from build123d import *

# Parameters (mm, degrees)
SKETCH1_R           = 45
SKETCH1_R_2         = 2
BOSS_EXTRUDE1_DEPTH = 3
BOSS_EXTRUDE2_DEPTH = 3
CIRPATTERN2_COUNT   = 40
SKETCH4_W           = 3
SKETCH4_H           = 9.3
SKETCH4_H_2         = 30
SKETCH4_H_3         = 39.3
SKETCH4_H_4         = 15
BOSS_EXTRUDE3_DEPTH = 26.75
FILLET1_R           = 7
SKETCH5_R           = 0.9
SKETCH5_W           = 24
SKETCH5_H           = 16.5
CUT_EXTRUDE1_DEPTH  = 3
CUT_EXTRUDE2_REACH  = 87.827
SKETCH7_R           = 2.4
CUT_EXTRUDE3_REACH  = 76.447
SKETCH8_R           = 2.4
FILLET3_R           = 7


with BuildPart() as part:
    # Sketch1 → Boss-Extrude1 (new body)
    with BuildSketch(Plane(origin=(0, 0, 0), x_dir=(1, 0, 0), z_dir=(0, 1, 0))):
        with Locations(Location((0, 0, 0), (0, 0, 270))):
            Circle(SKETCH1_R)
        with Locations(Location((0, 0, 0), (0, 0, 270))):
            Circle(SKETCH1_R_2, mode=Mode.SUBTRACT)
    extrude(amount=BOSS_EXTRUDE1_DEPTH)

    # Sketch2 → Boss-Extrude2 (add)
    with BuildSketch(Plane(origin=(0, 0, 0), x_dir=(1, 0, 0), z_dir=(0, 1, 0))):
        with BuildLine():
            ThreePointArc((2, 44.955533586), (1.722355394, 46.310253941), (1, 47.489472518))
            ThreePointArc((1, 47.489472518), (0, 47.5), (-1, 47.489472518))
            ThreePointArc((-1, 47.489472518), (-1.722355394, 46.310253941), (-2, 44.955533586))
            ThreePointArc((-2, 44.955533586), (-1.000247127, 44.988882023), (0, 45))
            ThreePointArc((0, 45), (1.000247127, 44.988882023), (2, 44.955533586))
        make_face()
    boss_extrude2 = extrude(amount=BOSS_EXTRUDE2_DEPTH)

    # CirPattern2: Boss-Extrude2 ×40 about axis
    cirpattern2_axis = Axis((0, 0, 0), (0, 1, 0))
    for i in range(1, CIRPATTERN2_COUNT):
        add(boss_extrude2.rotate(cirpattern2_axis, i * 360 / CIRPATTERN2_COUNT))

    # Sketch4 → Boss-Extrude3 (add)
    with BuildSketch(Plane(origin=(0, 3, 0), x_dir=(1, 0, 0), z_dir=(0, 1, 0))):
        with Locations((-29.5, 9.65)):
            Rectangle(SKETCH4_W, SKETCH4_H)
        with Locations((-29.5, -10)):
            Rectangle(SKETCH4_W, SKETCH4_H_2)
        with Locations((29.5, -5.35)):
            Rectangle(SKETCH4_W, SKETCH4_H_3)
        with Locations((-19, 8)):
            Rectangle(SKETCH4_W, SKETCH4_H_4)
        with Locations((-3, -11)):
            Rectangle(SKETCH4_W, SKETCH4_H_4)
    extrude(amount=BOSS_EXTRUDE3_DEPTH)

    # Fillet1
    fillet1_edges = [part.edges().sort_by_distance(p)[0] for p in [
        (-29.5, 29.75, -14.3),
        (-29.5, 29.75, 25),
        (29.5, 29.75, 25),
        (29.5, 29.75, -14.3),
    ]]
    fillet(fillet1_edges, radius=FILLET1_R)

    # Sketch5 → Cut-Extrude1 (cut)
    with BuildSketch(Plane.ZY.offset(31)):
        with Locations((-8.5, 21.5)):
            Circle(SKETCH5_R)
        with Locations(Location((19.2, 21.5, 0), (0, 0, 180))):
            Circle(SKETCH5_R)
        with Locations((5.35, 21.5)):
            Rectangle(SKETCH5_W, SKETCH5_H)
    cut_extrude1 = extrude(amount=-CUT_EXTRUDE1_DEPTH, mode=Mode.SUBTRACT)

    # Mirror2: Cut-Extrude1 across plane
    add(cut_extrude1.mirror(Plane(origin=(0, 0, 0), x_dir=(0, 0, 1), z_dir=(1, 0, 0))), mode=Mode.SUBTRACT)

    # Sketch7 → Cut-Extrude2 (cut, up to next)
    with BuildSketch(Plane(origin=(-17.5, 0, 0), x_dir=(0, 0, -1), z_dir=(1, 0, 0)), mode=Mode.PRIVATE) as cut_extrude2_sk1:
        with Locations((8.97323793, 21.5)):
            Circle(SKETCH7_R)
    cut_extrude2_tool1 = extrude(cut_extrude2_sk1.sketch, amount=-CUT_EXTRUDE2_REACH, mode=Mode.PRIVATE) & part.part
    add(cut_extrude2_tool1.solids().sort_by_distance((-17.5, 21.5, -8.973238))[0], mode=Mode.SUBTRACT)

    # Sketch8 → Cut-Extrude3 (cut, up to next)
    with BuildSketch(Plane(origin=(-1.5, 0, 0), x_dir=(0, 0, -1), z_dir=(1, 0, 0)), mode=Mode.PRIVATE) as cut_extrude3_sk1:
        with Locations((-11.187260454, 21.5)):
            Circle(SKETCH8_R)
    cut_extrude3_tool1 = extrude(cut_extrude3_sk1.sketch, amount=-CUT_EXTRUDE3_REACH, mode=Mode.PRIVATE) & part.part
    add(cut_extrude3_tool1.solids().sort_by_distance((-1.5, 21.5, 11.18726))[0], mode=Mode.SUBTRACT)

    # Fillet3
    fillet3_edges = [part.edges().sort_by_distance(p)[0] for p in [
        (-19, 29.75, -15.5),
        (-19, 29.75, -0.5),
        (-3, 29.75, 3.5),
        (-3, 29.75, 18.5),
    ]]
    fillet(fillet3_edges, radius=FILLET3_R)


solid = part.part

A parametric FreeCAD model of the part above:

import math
import FreeCAD as App
import Part
import Sketcher
Q = App.Units.Quantity


def edges_at(feature, points):
    """Names of the edges that pass closest to the given points."""
    edges = feature.Shape.Edges
    near = lambda p: min(range(len(edges)), key=lambda i: edges[i].distToShape(Part.Vertex(*p))[0])
    return sorted({f"Edge{near(p) + 1}" for p in points})

doc = App.newDocument("Part")
body = doc.addObject("PartDesign::Body", "Body")

sketch1 = body.newObject("Sketcher::SketchObject", "Sketch")
sketch1.AttachmentSupport = (doc.getObject("XZ_Plane"), [""])
sketch1.MapMode = "FlatFace"
sketch1.addGeometry([
    Part.Circle(App.Vector(0, 0, 0), App.Vector(0, 0, 1), 45),
    Part.Circle(App.Vector(0, 0, 0), App.Vector(0, 0, 1), 2),
], False)
sketch1.addConstraint([
    Sketcher.Constraint("Coincident", 0, 3, -1, 1),
    Sketcher.Constraint("Coincident", 1, 3, -1, 1),
    Sketcher.Constraint("Diameter", 0, Q("90 mm")),
    Sketcher.Constraint("Diameter", 1, Q("4 mm")),
])
pad1 = body.newObject("PartDesign::Pad", "Pad")
pad1.Profile = sketch1
pad1.Length = 3
pad1.Reversed = True

sketch2 = body.newObject("Sketcher::SketchObject", "Sketch001")
sketch2.AttachmentSupport = (doc.getObject("XZ_Plane"), [""])
sketch2.MapMode = "FlatFace"
sketch2.addGeometry([
    Part.ArcOfCircle(Part.Circle(App.Vector(-2, -44.8, 0), App.Vector(0, 0, 1), 4), math.radians(-41), math.radians(-2)),
    Part.ArcOfCircle(Part.Circle(App.Vector(0, 0, 0), App.Vector(0, 0, 1), 47.5), math.radians(-91.21), math.radians(-88.79)),
    Part.ArcOfCircle(Part.Circle(App.Vector(2, -44.8, 0), App.Vector(0, 0, 1), 4), math.radians(-178), math.radians(-139)),
    Part.ArcOfCircle(Part.Circle(App.Vector(0, 0, 0), App.Vector(0, 0, 1), 45), math.radians(-92.55), math.radians(-90)),
    Part.ArcOfCircle(Part.Circle(App.Vector(0, 0, 0), App.Vector(0, 0, 1), 45), math.radians(-90), math.radians(-87.45)),
], False)
sketch2.addConstraint([
    Sketcher.Constraint("Coincident", 0, 1, 1, 2),
    Sketcher.Constraint("Coincident", 1, 1, 2, 2),
    Sketcher.Constraint("Coincident", 2, 1, 3, 1),
    Sketcher.Constraint("Tangent", 3, 2, 4, 1),
    Sketcher.Constraint("Coincident", 4, 2, 0, 2),
    Sketcher.Constraint("Coincident", 1, 3, -1, 1),
    Sketcher.Constraint("Coincident", 3, 3, -1, 1),
    Sketcher.Constraint("Equal", 0, 2),
    Sketcher.Constraint("Equal", 3, 4),
    Sketcher.Constraint("Symmetric", 0, 3, 2, 3, -2),
    Sketcher.Constraint("PointOnObject", 3, 2, -2),
    Sketcher.Constraint("Radius", 0, Q("4 mm")),
    Sketcher.Constraint("Radius", 3, Q("45 mm")),
    Sketcher.Constraint("Radius", 1, Q("47.500002 mm")),
    Sketcher.Constraint("DistanceX", -1, 1, 0, 1, Q("1 mm")),
    Sketcher.Constraint("DistanceX", 2, 1, -1, 1, Q("2 mm")),
])
pad2 = body.newObject("PartDesign::Pad", "Pad001")
pad2.Profile = sketch2
pad2.Length = 3
pad2.Reversed = True
doc.recompute()

polarpattern = body.newObject("PartDesign::PolarPattern", "PolarPattern")
polarpattern.Originals = [pad2]
polarpattern.Axis = (doc.getObject("Y_Axis"), [""])
polarpattern.Angle = 360
polarpattern.Occurrences = 40
body.Tip = polarpattern

sketch3 = body.newObject("Sketcher::SketchObject", "Sketch002")
sketch3.AttachmentSupport = (doc.getObject("XZ_Plane"), [""])
sketch3.MapMode = "FlatFace"
sketch3.AttachmentOffset = App.Placement(App.Vector(0, 0, -3), App.Rotation())
sketch3.addGeometry([
    Part.LineSegment(App.Vector(-31, -14.3, 0), App.Vector(-31, 25, 0)),
    Part.LineSegment(App.Vector(-31, 25, 0), App.Vector(-28, 25, 0)),
    Part.LineSegment(App.Vector(-28, 25, 0), App.Vector(-28, -14.3, 0)),
    Part.LineSegment(App.Vector(-28, -14.3, 0), App.Vector(-31, -14.3, 0)),
    Part.LineSegment(App.Vector(28, -14.3, 0), App.Vector(28, 25, 0)),
    Part.LineSegment(App.Vector(28, 25, 0), App.Vector(31, 25, 0)),
    Part.LineSegment(App.Vector(31, 25, 0), App.Vector(31, -14.3, 0)),
    Part.LineSegment(App.Vector(31, -14.3, 0), App.Vector(28, -14.3, 0)),
    Part.LineSegment(App.Vector(-20.5, -15.5, 0), App.Vector(-20.5, -0.5, 0)),
    Part.LineSegment(App.Vector(-20.5, -0.5, 0), App.Vector(-17.5, -0.5, 0)),
    Part.LineSegment(App.Vector(-17.5, -0.5, 0), App.Vector(-17.5, -15.5, 0)),
    Part.LineSegment(App.Vector(-17.5, -15.5, 0), App.Vector(-20.5, -15.5, 0)),
    Part.LineSegment(App.Vector(-4.5, 3.5, 0), App.Vector(-4.5, 18.5, 0)),
    Part.LineSegment(App.Vector(-4.5, 18.5, 0), App.Vector(-1.5, 18.5, 0)),
    Part.LineSegment(App.Vector(-1.5, 18.5, 0), App.Vector(-1.5, 3.5, 0)),
    Part.LineSegment(App.Vector(-1.5, 3.5, 0), App.Vector(-4.5, 3.5, 0)),
], False)
sketch3.addConstraint([
    Sketcher.Constraint("Coincident", 0, 2, 1, 1),
    Sketcher.Constraint("Coincident", 1, 2, 2, 1),
    Sketcher.Constraint("Coincident", 2, 2, 3, 1),
    Sketcher.Constraint("Coincident", 3, 2, 0, 1),
    Sketcher.Constraint("Coincident", 4, 2, 5, 1),
    Sketcher.Constraint("Coincident", 5, 2, 6, 1),
    Sketcher.Constraint("Coincident", 6, 2, 7, 1),
    Sketcher.Constraint("Coincident", 7, 2, 4, 1),
    Sketcher.Constraint("Coincident", 8, 2, 9, 1),
    Sketcher.Constraint("Coincident", 9, 2, 10, 1),
    Sketcher.Constraint("Coincident", 10, 2, 11, 1),
    Sketcher.Constraint("Coincident", 11, 2, 8, 1),
    Sketcher.Constraint("Coincident", 12, 2, 13, 1),
    Sketcher.Constraint("Coincident", 13, 2, 14, 1),
    Sketcher.Constraint("Coincident", 14, 2, 15, 1),
    Sketcher.Constraint("Coincident", 15, 2, 12, 1),
    Sketcher.Constraint("Vertical", 0),
    Sketcher.Constraint("Horizontal", 1),
    Sketcher.Constraint("Vertical", 2),
    Sketcher.Constraint("Horizontal", 3),
    Sketcher.Constraint("Vertical", 4),
    Sketcher.Constraint("Horizontal", 5),
    Sketcher.Constraint("Vertical", 6),
    Sketcher.Constraint("Horizontal", 7),
    Sketcher.Constraint("Vertical", 8),
    Sketcher.Constraint("Horizontal", 9),
    Sketcher.Constraint("Vertical", 10),
    Sketcher.Constraint("Horizontal", 11),
    Sketcher.Constraint("Vertical", 12),
    Sketcher.Constraint("Horizontal", 13),
    Sketcher.Constraint("Vertical", 14),
    Sketcher.Constraint("Horizontal", 15),
    Sketcher.Constraint("Symmetric", 1, 2, 4, 2, -2),
    Sketcher.Constraint("Symmetric", 3, 2, 6, 2, -2),
    Sketcher.Constraint("Equal", 7, 9),
    Sketcher.Constraint("Equal", 11, 13),
    Sketcher.Constraint("Equal", 10, 12),
    Sketcher.Constraint("DistanceX", 1, 1, 1, 2, Q("3 mm")),
    Sketcher.Constraint("DistanceY", 8, 1, 8, 2, Q("15 mm")),
    Sketcher.Constraint("DistanceY", 0, 1, 0, 2, Q("39.3 mm")),
    Sketcher.Constraint("DistanceX", 0, 2, -1, 1, Q("31 mm")),
    Sketcher.Constraint("DistanceY", -1, 1, 0, 2, Q("25 mm")),
    Sketcher.Constraint("DistanceX", 9, 2, 12, 2, Q("13 mm")),
    Sketcher.Constraint("DistanceY", 9, 2, 12, 2, Q("19 mm")),
    Sketcher.Constraint("DistanceX", 8, 2, -1, 1, Q("20.5 mm")),
    Sketcher.Constraint("DistanceY", 8, 2, -1, 1, Q("0.5 mm")),
])
pad3 = body.newObject("PartDesign::Pad", "Pad002")
pad3.Profile = sketch3
pad3.Length = 26.75
pad3.Reversed = True
doc.recompute()

fillet = body.newObject("PartDesign::Fillet", "Fillet")
fillet.Base = (pad3, edges_at(pad3, [
    (-29.5, 29.75, -14.3),
    (-29.5, 29.75, 25),
    (29.5, 29.75, 25),
    (29.5, 29.75, -14.3),
]))
fillet.Radius = 7

sketch4 = body.newObject("Sketcher::SketchObject", "Sketch003")
sketch4.AttachmentSupport = (doc.getObject("YZ_Plane"), [""])
sketch4.MapMode = "FlatFace"
sketch4.AttachmentOffset = App.Placement(App.Vector(0, 0, -31), App.Rotation())
sketch4.addGeometry([
    Part.Circle(App.Vector(21.5, -8.5, 0), App.Vector(0, 0, 1), 0.9),
    Part.Circle(App.Vector(21.5, 19.2, 0), App.Vector(0, 0, 1), 0.9),
    Part.LineSegment(App.Vector(29.8, -6.7, 0), App.Vector(13.2, -6.7, 0)),
    Part.LineSegment(App.Vector(13.2, -6.7, 0), App.Vector(13.2, 17.4, 0)),
    Part.LineSegment(App.Vector(13.2, 17.4, 0), App.Vector(29.8, 17.4, 0)),
    Part.LineSegment(App.Vector(29.8, 17.4, 0), App.Vector(29.8, -6.7, 0)),
], False)
sketch4.addConstraint([
    Sketcher.Constraint("Coincident", 2, 2, 3, 1),
    Sketcher.Constraint("Coincident", 3, 2, 4, 1),
    Sketcher.Constraint("Coincident", 4, 2, 5, 1),
    Sketcher.Constraint("Coincident", 5, 2, 2, 1),
    Sketcher.Constraint("Horizontal", 2),
    Sketcher.Constraint("Vertical", 3),
    Sketcher.Constraint("Horizontal", 4),
    Sketcher.Constraint("Vertical", 5),
    Sketcher.Constraint("Equal", 0, 1),
    Sketcher.Constraint("Vertical", 0, 3, 1, 3),
    Sketcher.Constraint("Diameter", 0, Q("1.8 mm")),
    Sketcher.Constraint("DistanceY", 3, 1, 3, 2, Q("24 mm")),
    Sketcher.Constraint("DistanceX", 2, 2, 2, 1, Q("16.5 mm")),
    Sketcher.Constraint("DistanceX", -1, 1, 0, 3, Q("21.5 mm")),
    Sketcher.Constraint("DistanceY", 0, 3, -1, 1, Q("8.5 mm")),
    Sketcher.Constraint("DistanceY", -1, 1, 1, 3, Q("19.2 mm")),
    Sketcher.Constraint("DistanceX", -1, 1, 2, 2, Q("13.25 mm")),
    Sketcher.Constraint("DistanceY", 2, 2, -1, 1, Q("6.65 mm")),
])
pocket1 = body.newObject("PartDesign::Pocket", "Pocket")
pocket1.Profile = sketch4
pocket1.Length = 3
pocket1.Reversed = True
doc.recompute()

mirrored = body.newObject("PartDesign::Mirrored", "Mirrored")
mirrored.Originals = [pocket1]
mirrored.MirrorPlane = (doc.getObject("YZ_Plane"), [""])
body.Tip = mirrored

sketch5 = body.newObject("Sketcher::SketchObject", "Sketch004")
sketch5.AttachmentSupport = (doc.getObject("YZ_Plane"), [""])
sketch5.MapMode = "FlatFace"
sketch5.AttachmentOffset = App.Placement(App.Vector(0, 0, -17.5), App.Rotation())
sketch5.addGeometry(Part.Circle(App.Vector(21.5, -9, 0), App.Vector(0, 0, 1), 2.4), False)
sketch5.addConstraint([
    Sketcher.Constraint("Diameter", 0, Q("4.8 mm")),
    Sketcher.Constraint("DistanceX", -1, 1, 0, 3, Q("21.5 mm")),
    Sketcher.Constraint("DistanceY", 0, 3, -1, 1, Q("8.973238 mm")),
])
pocket2 = body.newObject("PartDesign::Pocket", "Pocket001")
pocket2.Profile = sketch5
pocket2.Type = "UpToFirst"

sketch6 = body.newObject("Sketcher::SketchObject", "Sketch005")
sketch6.AttachmentSupport = (doc.getObject("YZ_Plane"), [""])
sketch6.MapMode = "FlatFace"
sketch6.AttachmentOffset = App.Placement(App.Vector(0, 0, -1.5), App.Rotation())
sketch6.addGeometry(Part.Circle(App.Vector(21.5, 11.2, 0), App.Vector(0, 0, 1), 2.4), False)
sketch6.addConstraint([
    Sketcher.Constraint("Diameter", 0, Q("4.8 mm")),
    Sketcher.Constraint("DistanceX", -1, 1, 0, 3, Q("21.5 mm")),
    Sketcher.Constraint("DistanceY", -1, 1, 0, 3, Q("11.18726 mm")),
])
pocket3 = body.newObject("PartDesign::Pocket", "Pocket002")
pocket3.Profile = sketch6
pocket3.Type = "UpToFirst"
doc.recompute()

fillet2 = body.newObject("PartDesign::Fillet", "Fillet001")
fillet2.Base = (pocket3, edges_at(pocket3, [
    (-19, 29.75, -15.5),
    (-19, 29.75, -0.5),
    (-3, 29.75, 3.5),
    (-3, 29.75, 18.5),
]))
fillet2.Radius = 7

doc.recompute()
